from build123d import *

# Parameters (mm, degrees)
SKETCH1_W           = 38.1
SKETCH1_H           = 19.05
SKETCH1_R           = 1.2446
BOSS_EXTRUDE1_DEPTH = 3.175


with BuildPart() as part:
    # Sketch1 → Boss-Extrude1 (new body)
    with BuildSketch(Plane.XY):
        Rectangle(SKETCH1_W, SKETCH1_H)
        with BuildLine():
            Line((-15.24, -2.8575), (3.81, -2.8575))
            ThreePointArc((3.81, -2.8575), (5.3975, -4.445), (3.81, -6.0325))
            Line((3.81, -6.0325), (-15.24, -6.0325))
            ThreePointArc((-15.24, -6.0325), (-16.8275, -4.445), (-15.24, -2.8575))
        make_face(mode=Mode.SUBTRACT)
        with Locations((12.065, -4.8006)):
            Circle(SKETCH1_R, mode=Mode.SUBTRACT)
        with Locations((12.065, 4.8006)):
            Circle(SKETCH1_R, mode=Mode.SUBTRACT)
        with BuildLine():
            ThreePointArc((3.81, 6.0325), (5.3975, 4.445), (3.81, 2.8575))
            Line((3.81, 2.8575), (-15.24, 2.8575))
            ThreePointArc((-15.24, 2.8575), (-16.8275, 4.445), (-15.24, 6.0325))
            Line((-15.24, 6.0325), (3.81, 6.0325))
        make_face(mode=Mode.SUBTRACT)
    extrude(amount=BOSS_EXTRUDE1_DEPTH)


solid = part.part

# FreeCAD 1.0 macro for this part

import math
import FreeCAD as App
import Part
import Sketcher

V = App.Vector
Q = App.Units.Quantity

doc = App.newDocument("Part")
params = doc.addObject("Spreadsheet::Sheet", "Params")
for row, (alias, value) in enumerate([
    ("sketch1_diameter", "0.098 in"),
    ("sketch1_width", "1.5 in"),
    ("sketch1_radius", "0.0625 in"),
    ("sketch1_width2", "0.75 in"),
    ("pad1_length", "0.125 in"),
], start=1):
    params.set(f"A{row}", alias)
    params.set(f"B{row}", "=" + value)
    params.setAlias(f"B{row}", alias)

body = doc.addObject("PartDesign::Body", "Body")

# Sketch on XY plane
sketch1 = body.newObject("Sketcher::SketchObject", "Sketch")
sketch1.AttachmentSupport = (doc.getObject("XY_Plane"), [""])
sketch1.MapMode = "FlatFace"
sketch1.addGeometry(Part.LineSegment(V(-19.1, 9.5, 0), V(-19.1, -9.5, 0)), False)
sketch1.addGeometry(Part.LineSegment(V(-19.1, -9.5, 0), V(19.1, -9.5, 0)), False)
sketch1.addGeometry(Part.LineSegment(V(19.1, -9.5, 0), V(19.1, 9.5, 0)), False)
sketch1.addGeometry(Part.LineSegment(V(19.1, 9.5, 0), V(-19.1, 9.5, 0)), False)
sketch1.addGeometry(Part.ArcOfCircle(Part.Circle(V(-15.2, -4.4, 0), V(0, 0, 1), 1.6), math.radians(90), math.radians(270)), False)
sketch1.addGeometry(Part.LineSegment(V(-15.2, -2.9, 0), V(3.8, -2.9, 0)), False)
sketch1.addGeometry(Part.ArcOfCircle(Part.Circle(V(3.8, -4.4, 0), V(0, 0, 1), 1.6), math.radians(-90), math.radians(90)), False)
sketch1.addGeometry(Part.LineSegment(V(3.8, -6, 0), V(-15.2, -6, 0)), False)
sketch1.addGeometry(Part.Circle(V(12.1, -4.8, 0), V(0, 0, 1), 1.2), False)
sketch1.addGeometry(Part.LineSegment(V(-15.2, 6, 0), V(3.8, 6, 0)), False)
sketch1.addGeometry(Part.ArcOfCircle(Part.Circle(V(3.8, 4.4, 0), V(0, 0, 1), 1.6), math.radians(-90), math.radians(90)), False)
sketch1.addGeometry(Part.LineSegment(V(3.8, 2.9, 0), V(-15.2, 2.9, 0)), False)
sketch1.addGeometry(Part.ArcOfCircle(Part.Circle(V(-15.2, 4.4, 0), V(0, 0, 1), 1.6), math.radians(90), math.radians(270)), False)
sketch1.addGeometry(Part.Circle(V(12.1, 4.8, 0), V(0, 0, 1), 1.2), False)
sketch1.addConstraint(Sketcher.Constraint("Coincident", 0, 2, 1, 1))
sketch1.addConstraint(Sketcher.Constraint("Coincident", 1, 2, 2, 1))
sketch1.addConstraint(Sketcher.Constraint("Coincident", 2, 2, 3, 1))
sketch1.addConstraint(Sketcher.Constraint("Coincident", 3, 2, 0, 1))
sketch1.addConstraint(Sketcher.Constraint("Tangent", 4, 1, 5, 1))
sketch1.addConstraint(Sketcher.Constraint("Tangent", 5, 2, 6, 2))
sketch1.addConstraint(Sketcher.Constraint("Tangent", 6, 1, 7, 1))
sketch1.addConstraint(Sketcher.Constraint("Tangent", 7, 2, 4, 2))
sketch1.addConstraint(Sketcher.Constraint("Tangent", 9, 2, 10, 2))
sketch1.addConstraint(Sketcher.Constraint("Tangent", 10, 1, 11, 1))
sketch1.addConstraint(Sketcher.Constraint("Tangent", 11, 2, 12, 2))
sketch1.addConstraint(Sketcher.Constraint("Tangent", 12, 1, 9, 1))
sketch1.addConstraint(Sketcher.Constraint("Vertical", 0))
sketch1.addConstraint(Sketcher.Constraint("Horizontal", 1))
sketch1.addConstraint(Sketcher.Constraint("Vertical", 2))
sketch1.addConstraint(Sketcher.Constraint("Horizontal", 3))
sketch1.addConstraint(Sketcher.Constraint("Horizontal", 5))
sketch1.addConstraint(Sketcher.Constraint("Horizontal", 7))
sketch1.addConstraint(Sketcher.Constraint("Horizontal", 9))
sketch1.addConstraint(Sketcher.Constraint("Horizontal", 11))
sketch1.addConstraint(Sketcher.Constraint("Equal", 6, 10))
sketch1.addConstraint(Sketcher.Constraint("Equal", 8, 13))
sketch1.addConstraint(Sketcher.Constraint("Symmetric", 0, 2, 2, 2, -1, 1))
sketch1.addConstraint(Sketcher.Constraint("Symmetric", 6, 3, 10, 3, -1))
sketch1.addConstraint(Sketcher.Constraint("Symmetric", 8, 3, 13, 3, -1))
sketch1.addConstraint(Sketcher.Constraint("Vertical", 4, 3, 12, 3))
sketch1.addConstraint(Sketcher.Constraint("Equal", 11, 0))
sketch1.addConstraint(Sketcher.Constraint("Diameter", 8, Q("0.098 in")))
sketch1.addConstraint(Sketcher.Constraint("DistanceX", 1, 1, 1, 2, Q("1.5 in")))
sketch1.addConstraint(Sketcher.Constraint("Radius", 4, Q("0.0625 in")))
sketch1.addConstraint(Sketcher.Constraint("DistanceX", 5, 1, 5, 2, Q("0.75 in")))
sketch1.addConstraint(Sketcher.Constraint("DistanceX", 4, 3, -1, 1, Q("0.6 in")))
sketch1.addConstraint(Sketcher.Constraint("DistanceY", 0, 2, 4, 3, Q("0.2 in")))
sketch1.addConstraint(Sketcher.Constraint("DistanceX", -1, 1, 8, 3, Q("0.475 in")))
sketch1.addConstraint(Sketcher.Constraint("DistanceY", 8, 3, -1, 1, Q("0.189 in")))
sketch1.setExpression("Constraints[27]", "Params.sketch1_diameter")
sketch1.setExpression("Constraints[28]", "Params.sketch1_width")
sketch1.setExpression("Constraints[29]", "Params.sketch1_radius")
sketch1.setExpression("Constraints[30]", "Params.sketch1_width2")
pad1 = body.newObject("PartDesign::Pad", "Pad")
pad1.Profile = sketch1
pad1.setExpression("Length", "Params.pad1_length")

doc.recompute()
